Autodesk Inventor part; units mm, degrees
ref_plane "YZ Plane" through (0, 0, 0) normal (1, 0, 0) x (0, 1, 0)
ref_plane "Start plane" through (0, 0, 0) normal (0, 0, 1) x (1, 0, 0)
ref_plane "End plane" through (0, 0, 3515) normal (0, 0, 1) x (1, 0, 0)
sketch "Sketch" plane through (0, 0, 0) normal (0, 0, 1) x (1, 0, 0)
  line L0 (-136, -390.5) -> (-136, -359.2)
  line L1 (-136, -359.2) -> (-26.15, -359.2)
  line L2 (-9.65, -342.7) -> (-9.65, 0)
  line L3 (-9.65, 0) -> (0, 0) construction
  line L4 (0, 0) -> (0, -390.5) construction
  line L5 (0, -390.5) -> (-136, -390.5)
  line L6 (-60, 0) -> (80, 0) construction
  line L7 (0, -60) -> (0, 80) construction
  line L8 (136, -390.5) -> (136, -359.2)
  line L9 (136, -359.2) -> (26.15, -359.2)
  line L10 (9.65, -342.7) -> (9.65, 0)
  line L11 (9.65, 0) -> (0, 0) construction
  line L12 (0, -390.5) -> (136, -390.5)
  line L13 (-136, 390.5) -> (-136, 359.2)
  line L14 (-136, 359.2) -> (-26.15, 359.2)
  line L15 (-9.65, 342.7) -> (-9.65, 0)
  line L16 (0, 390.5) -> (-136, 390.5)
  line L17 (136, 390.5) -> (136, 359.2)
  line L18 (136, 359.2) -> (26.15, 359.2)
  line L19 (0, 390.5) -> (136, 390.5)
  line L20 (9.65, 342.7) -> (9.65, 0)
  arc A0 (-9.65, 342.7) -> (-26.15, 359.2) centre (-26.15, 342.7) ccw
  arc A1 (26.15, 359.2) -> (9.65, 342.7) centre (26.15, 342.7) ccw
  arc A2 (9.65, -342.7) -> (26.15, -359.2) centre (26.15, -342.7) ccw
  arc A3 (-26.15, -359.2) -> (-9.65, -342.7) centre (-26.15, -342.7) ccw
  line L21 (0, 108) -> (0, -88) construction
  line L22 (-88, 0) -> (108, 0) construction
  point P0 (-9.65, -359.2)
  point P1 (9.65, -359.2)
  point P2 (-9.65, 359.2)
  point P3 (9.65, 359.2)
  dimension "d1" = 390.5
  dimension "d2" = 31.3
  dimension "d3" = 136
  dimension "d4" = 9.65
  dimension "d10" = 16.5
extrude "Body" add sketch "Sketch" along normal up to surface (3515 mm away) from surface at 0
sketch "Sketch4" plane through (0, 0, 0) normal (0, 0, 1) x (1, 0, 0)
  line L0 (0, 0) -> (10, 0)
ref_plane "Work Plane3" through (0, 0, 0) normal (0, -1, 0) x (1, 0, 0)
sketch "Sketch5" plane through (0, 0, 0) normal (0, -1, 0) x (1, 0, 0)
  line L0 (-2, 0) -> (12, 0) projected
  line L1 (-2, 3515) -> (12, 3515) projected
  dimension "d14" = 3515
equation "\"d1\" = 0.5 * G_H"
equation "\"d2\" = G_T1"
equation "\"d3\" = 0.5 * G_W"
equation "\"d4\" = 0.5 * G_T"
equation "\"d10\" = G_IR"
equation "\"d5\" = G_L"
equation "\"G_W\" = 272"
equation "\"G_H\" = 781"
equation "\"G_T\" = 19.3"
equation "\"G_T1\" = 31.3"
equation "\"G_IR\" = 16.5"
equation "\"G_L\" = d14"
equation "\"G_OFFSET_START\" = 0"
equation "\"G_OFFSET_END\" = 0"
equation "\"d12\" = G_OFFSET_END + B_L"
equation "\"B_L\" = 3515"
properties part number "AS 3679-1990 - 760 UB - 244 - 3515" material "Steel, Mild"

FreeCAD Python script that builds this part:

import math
import FreeCAD as App
import Part
import Sketcher
from FreeCAD import Vector
Q = App.Units.Quantity

doc = App.newDocument("Part")
body = doc.addObject("PartDesign::Body", "Body")

# Sketch on XY plane
sketch1 = body.newObject("Sketcher::SketchObject", "Sketch")
sketch1.AttachmentSupport = (doc.getObject("XY_Plane"), [""])
sketch1.MapMode = "FlatFace"
sketch1.addGeometry([
    Part.LineSegment(Vector(-136, -359, 0), Vector(-136, -390, 0)),  # 0
    Part.LineSegment(Vector(-136, -390, 0), Vector(136, -390, 0)),  # 1
    Part.LineSegment(Vector(136, -390, 0), Vector(136, -359, 0)),  # 2
    Part.LineSegment(Vector(136, -359, 0), Vector(26, -359, 0)),  # 3
    Part.ArcOfCircle(Part.Circle(Vector(26, -343, 0), Vector(0, 0, 1), 16), math.radians(180), math.radians(270)),  # 4
    Part.LineSegment(Vector(10, -343, 0), Vector(10, 343, 0)),  # 5
    Part.ArcOfCircle(Part.Circle(Vector(26, 343, 0), Vector(0, 0, 1), 16), math.radians(90), math.radians(180)),  # 6
    Part.LineSegment(Vector(26, 359, 0), Vector(136, 359, 0)),  # 7
    Part.LineSegment(Vector(136, 359, 0), Vector(136, 390, 0)),  # 8
    Part.LineSegment(Vector(136, 390, 0), Vector(-136, 390, 0)),  # 9
    Part.LineSegment(Vector(-136, 390, 0), Vector(-136, 359, 0)),  # 10
    Part.LineSegment(Vector(-136, 359, 0), Vector(-26, 359, 0)),  # 11
    Part.ArcOfCircle(Part.Circle(Vector(-26, 343, 0), Vector(0, 0, 1), 16), math.radians(0), math.radians(90)),  # 12
    Part.LineSegment(Vector(-10, 343, 0), Vector(-10, -343, 0)),  # 13
    Part.ArcOfCircle(Part.Circle(Vector(-26, -343, 0), Vector(0, 0, 1), 16), math.radians(-90), math.radians(0)),  # 14
    Part.LineSegment(Vector(-26, -359, 0), Vector(-136, -359, 0)),  # 15
], False)
sketch1.addConstraint([
    Sketcher.Constraint("Coincident", 0, 2, 1, 1),
    Sketcher.Constraint("Coincident", 1, 2, 2, 1),
    Sketcher.Constraint("Coincident", 2, 2, 3, 1),
    Sketcher.Constraint("Tangent", 3, 2, 4, 2),
    Sketcher.Constraint("Tangent", 4, 1, 5, 1),
    Sketcher.Constraint("Tangent", 5, 2, 6, 2),
    Sketcher.Constraint("Tangent", 6, 1, 7, 1),
    Sketcher.Constraint("Coincident", 7, 2, 8, 1),
    Sketcher.Constraint("Coincident", 8, 2, 9, 1),
    Sketcher.Constraint("Coincident", 9, 2, 10, 1),
    Sketcher.Constraint("Coincident", 10, 2, 11, 1),
    Sketcher.Constraint("Tangent", 11, 2, 12, 2),
    Sketcher.Constraint("Tangent", 12, 1, 13, 1),
    Sketcher.Constraint("Tangent", 13, 2, 14, 2),
    Sketcher.Constraint("Tangent", 14, 1, 15, 1),
    Sketcher.Constraint("Coincident", 15, 2, 0, 1),
    Sketcher.Constraint("Vertical", 0),
    Sketcher.Constraint("Horizontal", 1),
    Sketcher.Constraint("Vertical", 2),
    Sketcher.Constraint("Horizontal", 3),
    Sketcher.Constraint("Vertical", 5),
    Sketcher.Constraint("Horizontal", 7),
    Sketcher.Constraint("Vertical", 8),
    Sketcher.Constraint("Horizontal", 9),
    Sketcher.Constraint("Vertical", 10),
    Sketcher.Constraint("Horizontal", 11),
    Sketcher.Constraint("Vertical", 13),
    Sketcher.Constraint("Horizontal", 15),
    Sketcher.Constraint("Equal", 4, 6),
    Sketcher.Constraint("Equal", 6, 12),
    Sketcher.Constraint("Equal", 12, 14),
    Sketcher.Constraint("Symmetric", 4, 3, 12, 3, -1, 1),
    Sketcher.Constraint("Symmetric", 0, 2, 8, 2, -1, 1),
    Sketcher.Constraint("Symmetric", 7, 2, 10, 2, -2),
    Sketcher.Constraint("Symmetric", 2, 2, 15, 2, -2),
    Sketcher.Constraint("Radius", 4, Q("16.5 mm")),
    Sketcher.Constraint("DistanceY", 0, 2, 0, 1, Q("31.3 mm")),
    Sketcher.Constraint("DistanceX", 0, 2, -1, 1, Q("136 mm")),
    Sketcher.Constraint("DistanceY", 0, 2, -1, 1, Q("390.5 mm")),
    Sketcher.Constraint("DistanceX", -1, 1, 4, 1, Q("9.65 mm")),
])
pad1 = body.newObject("PartDesign::Pad", "Pad")
pad1.Profile = sketch1
pad1.Length = 3515

doc.recompute()
